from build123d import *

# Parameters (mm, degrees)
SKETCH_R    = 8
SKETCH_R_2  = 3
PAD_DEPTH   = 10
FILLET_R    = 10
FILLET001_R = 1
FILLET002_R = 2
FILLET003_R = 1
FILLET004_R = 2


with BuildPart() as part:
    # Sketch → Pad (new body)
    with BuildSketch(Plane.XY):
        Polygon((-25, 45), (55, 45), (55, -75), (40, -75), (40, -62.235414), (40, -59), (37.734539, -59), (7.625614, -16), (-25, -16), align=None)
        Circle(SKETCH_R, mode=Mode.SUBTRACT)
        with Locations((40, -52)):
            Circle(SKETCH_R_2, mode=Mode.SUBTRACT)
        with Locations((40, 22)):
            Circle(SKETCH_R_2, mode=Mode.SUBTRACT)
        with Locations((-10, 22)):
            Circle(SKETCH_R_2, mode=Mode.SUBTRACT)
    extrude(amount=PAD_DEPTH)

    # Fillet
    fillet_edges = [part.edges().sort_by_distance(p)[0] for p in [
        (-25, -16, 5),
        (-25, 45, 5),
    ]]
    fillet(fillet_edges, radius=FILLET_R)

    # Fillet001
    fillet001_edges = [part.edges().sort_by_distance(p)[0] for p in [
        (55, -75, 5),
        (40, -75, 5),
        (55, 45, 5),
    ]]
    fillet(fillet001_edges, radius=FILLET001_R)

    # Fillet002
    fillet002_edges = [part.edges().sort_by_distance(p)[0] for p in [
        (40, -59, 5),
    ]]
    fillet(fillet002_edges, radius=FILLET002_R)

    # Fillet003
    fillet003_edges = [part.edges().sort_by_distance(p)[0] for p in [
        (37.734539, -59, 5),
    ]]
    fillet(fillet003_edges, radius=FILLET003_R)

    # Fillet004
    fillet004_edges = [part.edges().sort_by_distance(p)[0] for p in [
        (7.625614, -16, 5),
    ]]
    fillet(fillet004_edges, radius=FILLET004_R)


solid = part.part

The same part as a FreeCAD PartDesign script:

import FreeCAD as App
import Part
import Sketcher
Q = App.Units.Quantity


def edges_at(feature, points):
    """Names of the edges that pass closest to the given points."""
    edges = feature.Shape.Edges
    near = lambda p: min(range(len(edges)), key=lambda i: edges[i].distToShape(Part.Vertex(*p))[0])
    return sorted({f"Edge{near(p) + 1}" for p in points})


def add_polygon(sketch, points):
    """Adds a closed chain of lines whose ends are joined by coincident constraints."""
    first, n = sketch.GeometryCount, len(points)
    for a, b in zip(points, points[1:] + points[:1]):
        sketch.addGeometry(Part.LineSegment(App.Vector(*a, 0), App.Vector(*b, 0)), False)
    for i in range(n):
        sketch.addConstraint(Sketcher.Constraint("Coincident", first + i, 2, first + (i + 1) % n, 1))

doc = App.newDocument("Part")
body = doc.addObject("PartDesign::Body", "Body")

# Sketch on XY plane
sketch1 = doc.addObject("Sketcher::SketchObject", "Sketch")
body.addObject(sketch1)
sketch1.AttachmentSupport = (doc.XY_Plane, [""])
sketch1.MapMode = "FlatFace"
add_polygon(sketch1, [(55, 45), (-25, 45), (-25, -16), (7.6, -16), (37.7, -59), (40, -59), (40, -75), (55, -75)])  # lines 0-7
sketch1.addGeometry(Part.Circle(App.Vector(40, -52, 0), App.Vector(0, 0, 1), 3), False)  # 8
sketch1.addGeometry(Part.Circle(App.Vector(40, 22, 0), App.Vector(0, 0, 1), 3), False)  # 9
sketch1.addGeometry(Part.Circle(App.Vector(0, 0, 0), App.Vector(0, 0, 1), 8), False)  # 10
sketch1.addGeometry(Part.Circle(App.Vector(-10, 22, 0), App.Vector(0, 0, 1), 3), False)  # 11
sketch1.addConstraint([
    Sketcher.Constraint("Horizontal", 0),
    Sketcher.Constraint("Vertical", 1),
    Sketcher.Constraint("Horizontal", 2),
    Sketcher.Constraint("Horizontal", 4),
    Sketcher.Constraint("Vertical", 5),
    Sketcher.Constraint("Horizontal", 6),
    Sketcher.Constraint("Vertical", 7),
    Sketcher.Constraint("Coincident", 10, 3, -1, 1),
    Sketcher.Constraint("Equal", 8, 9),
    Sketcher.Constraint("Equal", 9, 11),
    Sketcher.Constraint("Horizontal", 9, 3, 11, 3),
    Sketcher.Constraint("Vertical", 8, 3, 9, 3),
    Sketcher.Constraint("Vertical", 9, 3, 4, 2),
    Sketcher.Constraint("Diameter", 8, 6.0),
    Sketcher.Constraint("Diameter", 10, 16.0),
    Sketcher.Constraint("DistanceX", 0, 2, 0, 1, 80.0),
    Sketcher.Constraint("DistanceX", 6, 1, 6, 2, 15.0),
    Sketcher.Constraint("DistanceY", 1, 2, 1, 1, 61.0),
    Sketcher.Constraint("DistanceY", 5, 2, 5, 1, 16.0),
    Sketcher.Constraint("DistanceY", 7, 1, 7, 2, 120.0),
    Sketcher.Constraint("Angle", 3, Q("-54.999999 deg")),
    Sketcher.Constraint("DistanceX", -1, 1, 8, 3, 40.0),
    Sketcher.Constraint("DistanceY", 8, 3, -1, 1, 52.0),
    Sketcher.Constraint("DistanceY", -1, 1, 9, 3, 22.0),
    Sketcher.Constraint("DistanceX", 11, 3, -1, 1, 10.0),
    Sketcher.Constraint("DistanceY", -1, 1, 0, 2, 45.0),
    Sketcher.Constraint("DistanceX", 4, 1, 4, 2, 2.265461),
])
pad1 = doc.addObject("PartDesign::Pad", "Pad")
body.addObject(pad1)
pad1.Profile = sketch1
pad1.Length = 10
doc.recompute()

fillet = doc.addObject("PartDesign::Fillet", "Fillet")
body.addObject(fillet)
fillet.Base = (pad1, edges_at(pad1, [(-25, -16, 5), (-25, 45, 5)]))
fillet.Radius = 10
doc.recompute()

fillet2 = doc.addObject("PartDesign::Fillet", "Fillet001")
body.addObject(fillet2)
fillet2.Base = (fillet, edges_at(fillet, [(55, -75, 5), (40, -75, 5), (55, 45, 5)]))
fillet2.Radius = 1
doc.recompute()

fillet3 = doc.addObject("PartDesign::Fillet", "Fillet002")
body.addObject(fillet3)
fillet3.Base = (fillet2, edges_at(fillet2, [(40, -59, 5)]))
fillet3.Radius = 2
doc.recompute()

fillet4 = doc.addObject("PartDesign::Fillet", "Fillet003")
body.addObject(fillet4)
fillet4.Base = (fillet3, edges_at(fillet3, [(37.735, -59, 5)]))
fillet4.Radius = 1
doc.recompute()

fillet5 = doc.addObject("PartDesign::Fillet", "Fillet004")
body.addObject(fillet5)
fillet5.Base = (fillet4, edges_at(fillet4, [(7.626, -16, 5)]))
fillet5.Radius = 2

doc.recompute()
